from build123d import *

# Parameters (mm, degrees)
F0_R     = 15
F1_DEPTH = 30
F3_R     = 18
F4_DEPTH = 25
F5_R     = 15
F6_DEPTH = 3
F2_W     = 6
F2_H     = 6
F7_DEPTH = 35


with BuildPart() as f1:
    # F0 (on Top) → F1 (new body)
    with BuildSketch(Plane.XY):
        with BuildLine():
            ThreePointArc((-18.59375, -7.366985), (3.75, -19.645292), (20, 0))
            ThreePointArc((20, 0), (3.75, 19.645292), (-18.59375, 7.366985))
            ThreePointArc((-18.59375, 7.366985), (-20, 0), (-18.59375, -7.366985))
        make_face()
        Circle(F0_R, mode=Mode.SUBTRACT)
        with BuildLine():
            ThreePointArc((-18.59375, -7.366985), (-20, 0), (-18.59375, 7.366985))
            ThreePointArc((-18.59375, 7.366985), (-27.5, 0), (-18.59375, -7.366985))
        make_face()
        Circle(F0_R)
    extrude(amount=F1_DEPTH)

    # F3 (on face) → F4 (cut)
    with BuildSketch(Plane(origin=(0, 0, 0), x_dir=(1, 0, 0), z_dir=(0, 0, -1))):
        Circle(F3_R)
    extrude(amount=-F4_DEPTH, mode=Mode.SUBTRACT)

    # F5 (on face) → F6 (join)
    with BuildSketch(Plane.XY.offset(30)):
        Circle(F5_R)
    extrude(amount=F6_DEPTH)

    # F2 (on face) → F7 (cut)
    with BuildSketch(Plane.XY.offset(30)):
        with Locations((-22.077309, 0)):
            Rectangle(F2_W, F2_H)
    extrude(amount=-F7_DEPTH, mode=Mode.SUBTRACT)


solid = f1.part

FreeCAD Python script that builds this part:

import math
import FreeCAD as App
import Part
import Sketcher
from FreeCAD import Vector

doc = App.newDocument("Part")
params = doc.addObject("Spreadsheet::Sheet", "Params")
for row, (alias, value) in enumerate([
    ("sketch1_radius", "20 mm"),
    ("sketch1_radius2", "7.5 mm"),
    ("pad1_length", "30 mm"),
    ("sketch2_diameter", "36 mm"),
    ("pocket1_length", "25 mm"),
    ("sketch3_diameter", "30 mm"),
    ("pad2_length", "3 mm"),
    ("sketch4_width", "6 mm"),
    ("pocket2_length", "35 mm"),
], start=1):
    params.set(f"A{row}", alias)
    params.set(f"B{row}", "=" + value)
    params.setAlias(f"B{row}", alias)

body = doc.addObject("PartDesign::Body", "Body")

sketch1 = body.newObject("Sketcher::SketchObject", "Sketch")
sketch1.AttachmentSupport = (doc.getObject("XY_Plane"), [""])
sketch1.MapMode = "FlatFace"
sketch1.addGeometry(Part.ArcOfCircle(Part.Circle(Vector(0, 0, 0), Vector(0, 0, 1), 20), math.radians(-158), math.radians(0)), False)
sketch1.addGeometry(Part.ArcOfCircle(Part.Circle(Vector(0, 0, 0), Vector(0, 0, 1), 20), math.radians(0), math.radians(158)), False)
sketch1.addGeometry(Part.ArcOfCircle(Part.Circle(Vector(-20, 0, 0), Vector(0, 0, 1), 8), math.radians(79), math.radians(281)), False)
sketch1.addConstraint(Sketcher.Constraint("Tangent", 0, 2, 1, 1))
sketch1.addConstraint(Sketcher.Constraint("Coincident", 1, 2, 2, 1))
sketch1.addConstraint(Sketcher.Constraint("Coincident", 2, 2, 0, 1))
sketch1.addConstraint(Sketcher.Constraint("Coincident", 0, 3, -1, 1))
sketch1.addConstraint(Sketcher.Constraint("Equal", 0, 1))
sketch1.addConstraint(Sketcher.Constraint("PointOnObject", 2, 3, -1))
sketch1.addConstraint(Sketcher.Constraint("PointOnObject", 0, 2, -1))
sketch1.addConstraint(Sketcher.Constraint("Radius", 0, 20.0))
sketch1.addConstraint(Sketcher.Constraint("Radius", 2, 7.5))
sketch1.addConstraint(Sketcher.Constraint("DistanceX", 2, 3, -1, 1, 20.0))
sketch1.setExpression("Constraints[7]", "Params.sketch1_radius")
sketch1.setExpression("Constraints[8]", "Params.sketch1_radius2")
pad1 = body.newObject("PartDesign::Pad", "Pad")
pad1.Profile = sketch1
pad1.setExpression("Length", "Params.pad1_length")

sketch2 = body.newObject("Sketcher::SketchObject", "Sketch001")
sketch2.AttachmentSupport = (doc.getObject("XY_Plane"), [""])
sketch2.MapMode = "FlatFace"
sketch2.addGeometry(Part.Circle(Vector(0, 0, 0), Vector(0, 0, 1), 18), False)
sketch2.addConstraint(Sketcher.Constraint("Coincident", 0, 3, -1, 1))
sketch2.addConstraint(Sketcher.Constraint("Diameter", 0, 36.0))
sketch2.setExpression("Constraints[1]", "Params.sketch2_diameter")
pocket1 = body.newObject("PartDesign::Pocket", "Pocket")
pocket1.Profile = sketch2
pocket1.setExpression("Length", "Params.pocket1_length")
pocket1.Reversed = True

sketch3 = body.newObject("Sketcher::SketchObject", "Sketch002")
sketch3.AttachmentSupport = (doc.getObject("XY_Plane"), [""])
sketch3.MapMode = "FlatFace"
sketch3.AttachmentOffset = App.Placement(Vector(0, 0, 30), App.Rotation())
sketch3.addGeometry(Part.Circle(Vector(0, 0, 0), Vector(0, 0, 1), 15), False)
sketch3.addConstraint(Sketcher.Constraint("Coincident", 0, 3, -1, 1))
sketch3.addConstraint(Sketcher.Constraint("Diameter", 0, 30.0))
sketch3.setExpression("Constraints[1]", "Params.sketch3_diameter")
pad2 = body.newObject("PartDesign::Pad", "Pad001")
pad2.Profile = sketch3
pad2.setExpression("Length", "Params.pad2_length")

sketch4 = body.newObject("Sketcher::SketchObject", "Sketch003")
sketch4.AttachmentSupport = (doc.getObject("XY_Plane"), [""])
sketch4.MapMode = "FlatFace"
sketch4.AttachmentOffset = App.Placement(Vector(0, 0, 30), App.Rotation())
sketch4.addGeometry(Part.LineSegment(Vector(-25, 3, 0), Vector(-25, -3, 0)), False)
sketch4.addGeometry(Part.LineSegment(Vector(-25, -3, 0), Vector(-19, -3, 0)), False)
sketch4.addGeometry(Part.LineSegment(Vector(-19, -3, 0), Vector(-19, 3, 0)), False)
sketch4.addGeometry(Part.LineSegment(Vector(-19, 3, 0), Vector(-25, 3, 0)), False)
sketch4.addConstraint(Sketcher.Constraint("Coincident", 0, 2, 1, 1))
sketch4.addConstraint(Sketcher.Constraint("Coincident", 1, 2, 2, 1))
sketch4.addConstraint(Sketcher.Constraint("Coincident", 2, 2, 3, 1))
sketch4.addConstraint(Sketcher.Constraint("Coincident", 3, 2, 0, 1))
sketch4.addConstraint(Sketcher.Constraint("Vertical", 0))
sketch4.addConstraint(Sketcher.Constraint("Horizontal", 1))
sketch4.addConstraint(Sketcher.Constraint("Vertical", 2))
sketch4.addConstraint(Sketcher.Constraint("Horizontal", 3))
sketch4.addConstraint(Sketcher.Constraint("Equal", 3, 0))
sketch4.addConstraint(Sketcher.Constraint("DistanceX", 1, 1, 1, 2, 6.0))
sketch4.addConstraint(Sketcher.Constraint("DistanceY", 0, 2, -1, 1, 3.0))
sketch4.addConstraint(Sketcher.Constraint("DistanceX", 0, 2, -1, 1, 25.077309))
sketch4.setExpression("Constraints[9]", "Params.sketch4_width")
pocket2 = body.newObject("PartDesign::Pocket", "Pocket001")
pocket2.Profile = sketch4
pocket2.setExpression("Length", "Params.pocket2_length")

doc.recompute()
